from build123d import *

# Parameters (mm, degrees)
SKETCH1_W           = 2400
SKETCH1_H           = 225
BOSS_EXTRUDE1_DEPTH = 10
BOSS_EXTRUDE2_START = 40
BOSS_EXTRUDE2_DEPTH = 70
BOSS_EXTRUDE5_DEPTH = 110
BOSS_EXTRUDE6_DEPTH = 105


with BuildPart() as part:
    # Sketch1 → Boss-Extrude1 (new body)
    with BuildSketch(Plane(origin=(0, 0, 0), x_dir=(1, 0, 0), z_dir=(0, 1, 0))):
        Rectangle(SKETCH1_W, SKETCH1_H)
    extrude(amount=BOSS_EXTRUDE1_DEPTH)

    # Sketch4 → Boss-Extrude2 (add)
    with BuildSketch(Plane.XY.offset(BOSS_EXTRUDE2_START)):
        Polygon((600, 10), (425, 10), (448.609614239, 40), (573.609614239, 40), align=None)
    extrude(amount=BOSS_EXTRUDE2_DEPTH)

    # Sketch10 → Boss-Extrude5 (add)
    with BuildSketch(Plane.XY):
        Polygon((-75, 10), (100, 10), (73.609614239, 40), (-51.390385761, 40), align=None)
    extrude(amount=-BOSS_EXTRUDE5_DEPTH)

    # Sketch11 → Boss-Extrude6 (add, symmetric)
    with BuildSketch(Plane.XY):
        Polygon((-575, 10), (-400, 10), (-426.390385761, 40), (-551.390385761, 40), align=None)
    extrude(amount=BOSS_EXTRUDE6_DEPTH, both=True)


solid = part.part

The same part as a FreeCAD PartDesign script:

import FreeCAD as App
import Part
import Sketcher
from FreeCAD import Vector
Q = App.Units.Quantity

doc = App.newDocument("Part")
body = doc.addObject("PartDesign::Body", "Body")

sketch1 = body.newObject("Sketcher::SketchObject", "Sketch")
sketch1.AttachmentSupport = (doc.getObject("XZ_Plane"), [""])
sketch1.MapMode = "FlatFace"
sketch1.addGeometry([
    Part.LineSegment(Vector(-1200, -112, 0), Vector(-1200, 112, 0)),
    Part.LineSegment(Vector(-1200, 112, 0), Vector(1200, 112, 0)),
    Part.LineSegment(Vector(1200, 112, 0), Vector(1200, -112, 0)),
    Part.LineSegment(Vector(1200, -112, 0), Vector(-1200, -112, 0)),
], False)
sketch1.addConstraint([
    Sketcher.Constraint("Coincident", 0, 2, 1, 1),
    Sketcher.Constraint("Coincident", 1, 2, 2, 1),
    Sketcher.Constraint("Coincident", 2, 2, 3, 1),
    Sketcher.Constraint("Coincident", 3, 2, 0, 1),
    Sketcher.Constraint("Vertical", 0),
    Sketcher.Constraint("Horizontal", 1),
    Sketcher.Constraint("Vertical", 2),
    Sketcher.Constraint("Horizontal", 3),
    Sketcher.Constraint("Symmetric", 0, 2, 2, 2, -1, 1),
    Sketcher.Constraint("DistanceX", 1, 1, 1, 2, Q("2400 mm")),
    Sketcher.Constraint("DistanceY", 0, 1, 0, 2, Q("225 mm")),
])
pad1 = body.newObject("PartDesign::Pad", "Pad")
pad1.Profile = sketch1
pad1.Length = 10
pad1.Reversed = True

sketch2 = body.newObject("Sketcher::SketchObject", "Sketch001")
sketch2.AttachmentSupport = (doc.getObject("XY_Plane"), [""])
sketch2.MapMode = "FlatFace"
sketch2.AttachmentOffset = App.Placement(Vector(0, 0, 40), App.Rotation())
sketch2.addGeometry([
    Part.LineSegment(Vector(425, 10, 0), Vector(600, 10, 0)),
    Part.LineSegment(Vector(600, 10, 0), Vector(574, 40, 0)),
    Part.LineSegment(Vector(574, 40, 0), Vector(449, 40, 0)),
    Part.LineSegment(Vector(449, 40, 0), Vector(425, 10, 0)),
], False)
sketch2.addConstraint([
    Sketcher.Constraint("Coincident", 0, 2, 1, 1),
    Sketcher.Constraint("Coincident", 1, 2, 2, 1),
    Sketcher.Constraint("Coincident", 2, 2, 3, 1),
    Sketcher.Constraint("Coincident", 3, 2, 0, 1),
    Sketcher.Constraint("Horizontal", 0),
    Sketcher.Constraint("Horizontal", 2),
    Sketcher.Constraint("DistanceX", 0, 1, 0, 2, Q("175 mm")),
    Sketcher.Constraint("DistanceX", 2, 2, 2, 1, Q("125 mm")),
    Sketcher.Constraint("DistanceX", -1, 1, 0, 2, Q("600 mm")),
    Sketcher.Constraint("DistanceY", -1, 1, 0, 2, Q("10 mm")),
    Sketcher.Constraint("DistanceY", -1, 1, 1, 2, Q("40 mm")),
    Sketcher.Constraint("Distance", 1, Q("39.955631 mm")),
])
pad2 = body.newObject("PartDesign::Pad", "Pad001")
pad2.Profile = sketch2
pad2.Length = 70

sketch3 = body.newObject("Sketcher::SketchObject", "Sketch002")
sketch3.AttachmentSupport = (doc.getObject("XY_Plane"), [""])
sketch3.MapMode = "FlatFace"
sketch3.addGeometry([
    Part.LineSegment(Vector(-75, 10, 0), Vector(100, 10, 0)),
    Part.LineSegment(Vector(100, 10, 0), Vector(74, 40, 0)),
    Part.LineSegment(Vector(74, 40, 0), Vector(-51, 40, 0)),
    Part.LineSegment(Vector(-51, 40, 0), Vector(-75, 10, 0)),
], False)
sketch3.addConstraint([
    Sketcher.Constraint("Coincident", 0, 2, 1, 1),
    Sketcher.Constraint("Coincident", 1, 2, 2, 1),
    Sketcher.Constraint("Coincident", 2, 2, 3, 1),
    Sketcher.Constraint("Coincident", 3, 2, 0, 1),
    Sketcher.Constraint("Horizontal", 0),
    Sketcher.Constraint("Horizontal", 2),
    Sketcher.Constraint("DistanceX", 0, 1, 0, 2, Q("175 mm")),
    Sketcher.Constraint("DistanceX", 2, 2, 2, 1, Q("125 mm")),
    Sketcher.Constraint("DistanceX", -1, 1, 0, 2, Q("100 mm")),
    Sketcher.Constraint("DistanceY", -1, 1, 0, 2, Q("10 mm")),
    Sketcher.Constraint("DistanceY", -1, 1, 1, 2, Q("40 mm")),
    Sketcher.Constraint("Distance", 1, Q("39.955631 mm")),
])
pad3 = body.newObject("PartDesign::Pad", "Pad002")
pad3.Profile = sketch3
pad3.Length = 110
pad3.Reversed = True

sketch4 = body.newObject("Sketcher::SketchObject", "Sketch003")
sketch4.AttachmentSupport = (doc.getObject("XY_Plane"), [""])
sketch4.MapMode = "FlatFace"
sketch4.addGeometry([
    Part.LineSegment(Vector(-575, 10, 0), Vector(-400, 10, 0)),
    Part.LineSegment(Vector(-400, 10, 0), Vector(-426, 40, 0)),
    Part.LineSegment(Vector(-426, 40, 0), Vector(-551, 40, 0)),
    Part.LineSegment(Vector(-551, 40, 0), Vector(-575, 10, 0)),
], False)
sketch4.addConstraint([
    Sketcher.Constraint("Coincident", 0, 2, 1, 1),
    Sketcher.Constraint("Coincident", 1, 2, 2, 1),
    Sketcher.Constraint("Coincident", 2, 2, 3, 1),
    Sketcher.Constraint("Coincident", 3, 2, 0, 1),
    Sketcher.Constraint("Horizontal", 0),
    Sketcher.Constraint("Horizontal", 2),
    Sketcher.Constraint("DistanceX", 0, 1, 0, 2, Q("175 mm")),
    Sketcher.Constraint("DistanceX", 2, 2, 2, 1, Q("125 mm")),
    Sketcher.Constraint("DistanceX", 0, 2, -1, 1, Q("400 mm")),
    Sketcher.Constraint("DistanceY", -1, 1, 0, 2, Q("10 mm")),
    Sketcher.Constraint("DistanceY", -1, 1, 1, 2, Q("40 mm")),
    Sketcher.Constraint("Distance", 1, Q("39.955631 mm")),
])
pad4 = body.newObject("PartDesign::Pad", "Pad003")
pad4.Profile = sketch4
pad4.Length = 210
pad4.Midplane = True

doc.recompute()
